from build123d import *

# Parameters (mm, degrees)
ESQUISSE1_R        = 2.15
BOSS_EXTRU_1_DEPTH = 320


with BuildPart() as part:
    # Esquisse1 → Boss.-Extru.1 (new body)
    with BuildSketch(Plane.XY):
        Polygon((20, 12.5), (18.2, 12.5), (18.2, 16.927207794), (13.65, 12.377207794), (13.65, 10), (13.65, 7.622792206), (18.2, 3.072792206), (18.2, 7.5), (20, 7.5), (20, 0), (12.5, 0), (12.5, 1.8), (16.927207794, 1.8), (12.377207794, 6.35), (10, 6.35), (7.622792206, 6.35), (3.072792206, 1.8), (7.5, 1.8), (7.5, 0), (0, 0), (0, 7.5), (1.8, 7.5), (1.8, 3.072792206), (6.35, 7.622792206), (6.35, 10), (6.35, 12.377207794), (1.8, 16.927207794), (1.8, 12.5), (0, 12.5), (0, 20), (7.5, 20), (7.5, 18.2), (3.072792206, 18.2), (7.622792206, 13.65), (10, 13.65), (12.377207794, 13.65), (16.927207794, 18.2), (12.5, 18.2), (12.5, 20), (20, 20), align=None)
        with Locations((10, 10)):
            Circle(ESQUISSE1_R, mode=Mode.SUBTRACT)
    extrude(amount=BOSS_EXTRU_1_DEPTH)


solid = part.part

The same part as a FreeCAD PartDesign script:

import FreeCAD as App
import Part
import Sketcher

doc = App.newDocument("Part")
body = doc.addObject("PartDesign::Body", "Body")

sketch1 = body.newObject("Sketcher::SketchObject", "Sketch")
sketch1.AttachmentSupport = (doc.getObject("XY_Plane"), [""])
sketch1.MapMode = "FlatFace"
sketch1.addGeometry([
    Part.LineSegment(App.Vector(18.2, 12.5, 0), App.Vector(20, 12.5, 0)),
    Part.LineSegment(App.Vector(20, 12.5, 0), App.Vector(20, 20, 0)),
    Part.LineSegment(App.Vector(20, 20, 0), App.Vector(12.5, 20, 0)),
    Part.LineSegment(App.Vector(12.5, 20, 0), App.Vector(12.5, 18.2, 0)),
    Part.LineSegment(App.Vector(12.5, 18.2, 0), App.Vector(16.927208, 18.2, 0)),
    Part.LineSegment(App.Vector(16.927208, 18.2, 0), App.Vector(12.377208, 13.65, 0)),
    Part.LineSegment(App.Vector(12.377208, 13.65, 0), App.Vector(7.622792, 13.65, 0)),
    Part.LineSegment(App.Vector(7.622792, 13.65, 0), App.Vector(3.072792, 18.2, 0)),
    Part.LineSegment(App.Vector(3.072792, 18.2, 0), App.Vector(7.5, 18.2, 0)),
    Part.LineSegment(App.Vector(7.5, 18.2, 0), App.Vector(7.5, 20, 0)),
    Part.LineSegment(App.Vector(7.5, 20, 0), App.Vector(0, 20, 0)),
    Part.LineSegment(App.Vector(0, 20, 0), App.Vector(0, 12.5, 0)),
    Part.LineSegment(App.Vector(0, 12.5, 0), App.Vector(1.8, 12.5, 0)),
    Part.LineSegment(App.Vector(1.8, 12.5, 0), App.Vector(1.8, 16.927208, 0)),
    Part.LineSegment(App.Vector(1.8, 16.927208, 0), App.Vector(6.35, 12.377208, 0)),
    Part.LineSegment(App.Vector(6.35, 12.377208, 0), App.Vector(6.35, 7.622792, 0)),
    Part.LineSegment(App.Vector(6.35, 7.622792, 0), App.Vector(1.8, 3.072792, 0)),
    Part.LineSegment(App.Vector(1.8, 3.072792, 0), App.Vector(1.8, 7.5, 0)),
    Part.LineSegment(App.Vector(1.8, 7.5, 0), App.Vector(0, 7.5, 0)),
    Part.LineSegment(App.Vector(0, 7.5, 0), App.Vector(0, 0, 0)),
    Part.LineSegment(App.Vector(0, 0, 0), App.Vector(7.5, 0, 0)),
    Part.LineSegment(App.Vector(7.5, 0, 0), App.Vector(7.5, 1.8, 0)),
    Part.LineSegment(App.Vector(7.5, 1.8, 0), App.Vector(3.072792, 1.8, 0)),
    Part.LineSegment(App.Vector(3.072792, 1.8, 0), App.Vector(7.622792, 6.35, 0)),
    Part.LineSegment(App.Vector(7.622792, 6.35, 0), App.Vector(12.377208, 6.35, 0)),
    Part.LineSegment(App.Vector(12.377208, 6.35, 0), App.Vector(16.927208, 1.8, 0)),
    Part.LineSegment(App.Vector(16.927208, 1.8, 0), App.Vector(12.5, 1.8, 0)),
    Part.LineSegment(App.Vector(12.5, 1.8, 0), App.Vector(12.5, 0, 0)),
    Part.LineSegment(App.Vector(12.5, 0, 0), App.Vector(20, 0, 0)),
    Part.LineSegment(App.Vector(20, 0, 0), App.Vector(20, 7.5, 0)),
    Part.LineSegment(App.Vector(20, 7.5, 0), App.Vector(18.2, 7.5, 0)),
    Part.LineSegment(App.Vector(18.2, 7.5, 0), App.Vector(18.2, 3.072792, 0)),
    Part.LineSegment(App.Vector(18.2, 3.072792, 0), App.Vector(13.65, 7.622792, 0)),
    Part.LineSegment(App.Vector(13.65, 7.622792, 0), App.Vector(13.65, 12.377208, 0)),
    Part.LineSegment(App.Vector(13.65, 12.377208, 0), App.Vector(18.2, 16.927208, 0)),
    Part.LineSegment(App.Vector(18.2, 16.927208, 0), App.Vector(18.2, 12.5, 0)),
    Part.Circle(App.Vector(10, 10, 0), App.Vector(0, 0, 1), 2.15),
], False)
sketch1.addConstraint([
    Sketcher.Constraint("Coincident", 0, 2, 1, 1),
    Sketcher.Constraint("Coincident", 1, 2, 2, 1),
    Sketcher.Constraint("Coincident", 2, 2, 3, 1),
    Sketcher.Constraint("Coincident", 3, 2, 4, 1),
    Sketcher.Constraint("Coincident", 4, 2, 5, 1),
    Sketcher.Constraint("Coincident", 5, 2, 6, 1),
    Sketcher.Constraint("Coincident", 6, 2, 7, 1),
    Sketcher.Constraint("Coincident", 7, 2, 8, 1),
    Sketcher.Constraint("Coincident", 8, 2, 9, 1),
    Sketcher.Constraint("Coincident", 9, 2, 10, 1),
    Sketcher.Constraint("Coincident", 10, 2, 11, 1),
    Sketcher.Constraint("Coincident", 11, 2, 12, 1),
    Sketcher.Constraint("Coincident", 12, 2, 13, 1),
    Sketcher.Constraint("Coincident", 13, 2, 14, 1),
    Sketcher.Constraint("Coincident", 14, 2, 15, 1),
    Sketcher.Constraint("Coincident", 15, 2, 16, 1),
    Sketcher.Constraint("Coincident", 16, 2, 17, 1),
    Sketcher.Constraint("Coincident", 17, 2, 18, 1),
    Sketcher.Constraint("Coincident", 18, 2, 19, 1),
    Sketcher.Constraint("Coincident", 19, 2, 20, 1),
    Sketcher.Constraint("Coincident", 20, 2, 21, 1),
    Sketcher.Constraint("Coincident", 21, 2, 22, 1),
    Sketcher.Constraint("Coincident", 22, 2, 23, 1),
    Sketcher.Constraint("Coincident", 23, 2, 24, 1),
    Sketcher.Constraint("Coincident", 24, 2, 25, 1),
    Sketcher.Constraint("Coincident", 25, 2, 26, 1),
    Sketcher.Constraint("Coincident", 26, 2, 27, 1),
    Sketcher.Constraint("Coincident", 27, 2, 28, 1),
    Sketcher.Constraint("Coincident", 28, 2, 29, 1),
    Sketcher.Constraint("Coincident", 29, 2, 30, 1),
    Sketcher.Constraint("Coincident", 30, 2, 31, 1),
    Sketcher.Constraint("Coincident", 31, 2, 32, 1),
    Sketcher.Constraint("Coincident", 32, 2, 33, 1),
    Sketcher.Constraint("Coincident", 33, 2, 34, 1),
    Sketcher.Constraint("Coincident", 34, 2, 35, 1),
    Sketcher.Constraint("Coincident", 35, 2, 0, 1),
    Sketcher.Constraint("Horizontal", 0),
    Sketcher.Constraint("Vertical", 1),
    Sketcher.Constraint("Horizontal", 2),
    Sketcher.Constraint("Vertical", 3),
    Sketcher.Constraint("Horizontal", 4),
    Sketcher.Constraint("Horizontal", 6),
    Sketcher.Constraint("Horizontal", 8),
    Sketcher.Constraint("Vertical", 9),
    Sketcher.Constraint("Horizontal", 10),
    Sketcher.Constraint("Vertical", 11),
    Sketcher.Constraint("Horizontal", 12),
    Sketcher.Constraint("Vertical", 13),
    Sketcher.Constraint("Vertical", 15),
    Sketcher.Constraint("Vertical", 17),
    Sketcher.Constraint("Horizontal", 18),
    Sketcher.Constraint("Vertical", 19),
    Sketcher.Constraint("Horizontal", 20),
    Sketcher.Constraint("Vertical", 21),
    Sketcher.Constraint("Horizontal", 22),
    Sketcher.Constraint("Horizontal", 24),
    Sketcher.Constraint("Horizontal", 26),
    Sketcher.Constraint("Vertical", 27),
    Sketcher.Constraint("Horizontal", 28),
    Sketcher.Constraint("Vertical", 29),
    Sketcher.Constraint("Horizontal", 30),
    Sketcher.Constraint("Vertical", 31),
    Sketcher.Constraint("Vertical", 33),
    Sketcher.Constraint("Vertical", 35),
    Sketcher.Constraint("Coincident", 19, 2, -1, 1),
    Sketcher.Constraint("PointOnObject", 10, 2, -2),
    Sketcher.Constraint("PointOnObject", 27, 2, -1),
    Sketcher.Constraint("Perpendicular", 5, 7),
    Sketcher.Constraint("Parallel", 7, 14),
    Sketcher.Constraint("Perpendicular", 14, 16),
    Sketcher.Constraint("Parallel", 16, 23),
    Sketcher.Constraint("Perpendicular", 23, 25),
    Sketcher.Constraint("Parallel", 25, 32),
    Sketcher.Constraint("Perpendicular", 32, 34),
    Sketcher.Constraint("Horizontal", 4, 2, 7, 2),
    Sketcher.Constraint("Horizontal", 2, 2, 9, 2),
    Sketcher.Constraint("Horizontal", 0, 2, 11, 2),
    Sketcher.Constraint("Horizontal", 22, 2, 25, 2),
    Sketcher.Constraint("Horizontal", 18, 2, 29, 2),
    Sketcher.Constraint("Horizontal", 16, 2, 31, 2),
    Sketcher.Constraint("Horizontal", 15, 2, 32, 2),
    Sketcher.Constraint("Horizontal", 14, 2, 33, 2),
    Sketcher.Constraint("Horizontal", 13, 2, 34, 2),
    Sketcher.Constraint("Vertical", 13, 2, 16, 2),
    Sketcher.Constraint("Vertical", 9, 2, 20, 2),
    Sketcher.Constraint("Vertical", 7, 2, 22, 2),
    Sketcher.Constraint("Vertical", 6, 2, 23, 2),
    Sketcher.Constraint("Vertical", 5, 2, 24, 2),
    Sketcher.Constraint("Vertical", 4, 2, 25, 2),
    Sketcher.Constraint("Vertical", 3, 2, 26, 2),
    Sketcher.Constraint("Vertical", 1, 2, 28, 2),
    Sketcher.Constraint("Equal", 4, 8),
    Sketcher.Constraint("Equal", 2, 10),
    Sketcher.Constraint("Equal", 0, 12),
    Sketcher.Constraint("Equal", 28, 1),
    Sketcher.Constraint("Equal", 30, 3),
    Sketcher.Constraint("Equal", 26, 13),
    Sketcher.Constraint("Equal", 24, 15),
    Sketcher.Constraint("Equal", 13, 17),
    Sketcher.Constraint("Equal", 11, 19),
    Sketcher.Constraint("Equal", 9, 21),
    Sketcher.Constraint("Equal", 7, 14),
    Sketcher.Constraint("Diameter", 36, 4.3),
    Sketcher.Constraint("DistanceX", 0, 1, 0, 2, 1.8),
    Sketcher.Constraint("DistanceX", 2, 2, 2, 1, 7.5),
    Sketcher.Constraint("DistanceX", -1, 1, 36, 3, 10.0),
    Sketcher.Constraint("DistanceY", -1, 1, 36, 3, 10.0),
    Sketcher.Constraint("DistanceX", -1, 1, 0, 2, 20.0),
    Sketcher.Constraint("DistanceY", 24, 2, 5, 2, 7.3),
    Sketcher.Constraint("DistanceX", 4, 1, 4, 2, 4.427208),
])
pad1 = body.newObject("PartDesign::Pad", "Pad")
pad1.Profile = sketch1
pad1.Length = 320

doc.recompute()
